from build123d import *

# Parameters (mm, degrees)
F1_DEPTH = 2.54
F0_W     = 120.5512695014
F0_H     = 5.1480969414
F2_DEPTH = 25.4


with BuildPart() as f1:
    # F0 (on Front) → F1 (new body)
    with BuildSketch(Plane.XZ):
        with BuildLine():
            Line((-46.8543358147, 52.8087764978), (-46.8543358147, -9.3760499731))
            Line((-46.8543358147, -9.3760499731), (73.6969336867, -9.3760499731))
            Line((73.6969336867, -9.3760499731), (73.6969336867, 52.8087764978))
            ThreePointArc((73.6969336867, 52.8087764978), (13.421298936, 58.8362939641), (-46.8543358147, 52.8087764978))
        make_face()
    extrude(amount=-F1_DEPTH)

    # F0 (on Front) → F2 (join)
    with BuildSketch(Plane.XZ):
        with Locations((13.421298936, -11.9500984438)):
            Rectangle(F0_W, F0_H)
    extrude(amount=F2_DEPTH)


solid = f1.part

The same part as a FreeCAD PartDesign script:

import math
import FreeCAD as App
import Part
import Sketcher

V = App.Vector
Q = App.Units.Quantity

doc = App.newDocument("Part")
params = doc.addObject("Spreadsheet::Sheet", "Params")
for row, (alias, value) in enumerate([
    ("pad1_length", "0.1 in"),
    ("pad2_length", "1 in"),
], start=1):
    params.set(f"A{row}", alias)
    params.set(f"B{row}", "=" + value)
    params.setAlias(f"B{row}", alias)

body = doc.addObject("PartDesign::Body", "Body")
body.AllowCompound = True

sketch1 = body.newObject("Sketcher::SketchObject", "Sketch")
sketch1.AttachmentSupport = (doc.getObject("XZ_Plane"), [""])
sketch1.MapMode = "FlatFace"
sketch1.addGeometry(Part.LineSegment(V(-47, 53, 0), V(-47, -9, 0)), False)
sketch1.addGeometry(Part.LineSegment(V(-47, -9, 0), V(74, -9, 0)), False)
sketch1.addGeometry(Part.LineSegment(V(74, -9, 0), V(74, 53, 0)), False)
sketch1.addGeometry(Part.ArcOfCircle(Part.Circle(V(13, -246, 0), V(0, 0, 1), 304), math.radians(79), math.radians(101)), False)
sketch1.addConstraint(Sketcher.Constraint("Coincident", 0, 2, 1, 1))
sketch1.addConstraint(Sketcher.Constraint("Coincident", 1, 2, 2, 1))
sketch1.addConstraint(Sketcher.Constraint("Coincident", 2, 2, 3, 1))
sketch1.addConstraint(Sketcher.Constraint("Coincident", 3, 2, 0, 1))
sketch1.addConstraint(Sketcher.Constraint("Vertical", 0))
sketch1.addConstraint(Sketcher.Constraint("Horizontal", 1))
sketch1.addConstraint(Sketcher.Constraint("Vertical", 2))
sketch1.addConstraint(Sketcher.Constraint("Horizontal", 2, 2, 3, 2))
sketch1.addConstraint(Sketcher.Constraint("Radius", 3, Q("304.394233 mm")))
sketch1.addConstraint(Sketcher.Constraint("DistanceX", 1, 1, 1, 2, Q("120.55127 mm")))
sketch1.addConstraint(Sketcher.Constraint("DistanceX", -1, 1, 3, 3, Q("13.421299 mm")))
sketch1.addConstraint(Sketcher.Constraint("DistanceY", 0, 2, 0, 1, Q("62.184826 mm")))
sketch1.addConstraint(Sketcher.Constraint("DistanceY", 3, 3, -1, 1, Q("245.557939 mm")))
pad1 = body.newObject("PartDesign::Pad", "Pad")
pad1.Profile = sketch1
pad1.setExpression("Length", "Params.pad1_length")
pad1.Reversed = True

sketch2 = body.newObject("Sketcher::SketchObject", "Sketch001")
sketch2.AttachmentSupport = (doc.getObject("XZ_Plane"), [""])
sketch2.MapMode = "FlatFace"
sketch2.addGeometry(Part.LineSegment(V(-47, -9, 0), V(-47, -15, 0)), False)
sketch2.addGeometry(Part.LineSegment(V(-47, -15, 0), V(74, -15, 0)), False)
sketch2.addGeometry(Part.LineSegment(V(74, -15, 0), V(74, -9, 0)), False)
sketch2.addGeometry(Part.LineSegment(V(74, -9, 0), V(-47, -9, 0)), False)
sketch2.addConstraint(Sketcher.Constraint("Coincident", 0, 2, 1, 1))
sketch2.addConstraint(Sketcher.Constraint("Coincident", 1, 2, 2, 1))
sketch2.addConstraint(Sketcher.Constraint("Coincident", 2, 2, 3, 1))
sketch2.addConstraint(Sketcher.Constraint("Coincident", 3, 2, 0, 1))
sketch2.addConstraint(Sketcher.Constraint("Vertical", 0))
sketch2.addConstraint(Sketcher.Constraint("Horizontal", 1))
sketch2.addConstraint(Sketcher.Constraint("Vertical", 2))
sketch2.addConstraint(Sketcher.Constraint("Horizontal", 3))
sketch2.addConstraint(Sketcher.Constraint("DistanceX", 1, 1, 1, 2, Q("120.55127 mm")))
sketch2.addConstraint(Sketcher.Constraint("DistanceY", 0, 2, 0, 1, Q("5.148097 mm")))
sketch2.addConstraint(Sketcher.Constraint("DistanceY", 2, 2, -1, 1, Q("9.37605 mm")))
sketch2.addConstraint(Sketcher.Constraint("DistanceX", 0, 2, -1, 1, Q("46.854336 mm")))
pad2 = body.newObject("PartDesign::Pad", "Pad001")
pad2.Profile = sketch2
pad2.setExpression("Length", "Params.pad2_length")

doc.recompute()
